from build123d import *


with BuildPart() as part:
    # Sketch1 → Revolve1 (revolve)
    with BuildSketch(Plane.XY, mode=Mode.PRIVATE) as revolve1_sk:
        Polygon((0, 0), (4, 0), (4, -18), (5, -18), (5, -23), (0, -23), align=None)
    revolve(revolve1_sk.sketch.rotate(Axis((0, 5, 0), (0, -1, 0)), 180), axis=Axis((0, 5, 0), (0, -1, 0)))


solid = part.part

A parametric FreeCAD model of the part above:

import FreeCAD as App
import Part
import Sketcher
Q = App.Units.Quantity

doc = App.newDocument("Part")
body = doc.addObject("PartDesign::Body", "Body")

# Sketch on XY plane
sketch1 = doc.addObject("Sketcher::SketchObject", "Sketch")
body.addObject(sketch1)
sketch1.AttachmentSupport = (doc.XY_Plane, [""])
sketch1.MapMode = "FlatFace"
sketch1.addGeometry([
    Part.LineSegment(App.Vector(4, 0, 0), App.Vector(0, 0, 0)),  # 0
    Part.LineSegment(App.Vector(0, 0, 0), App.Vector(0, -23, 0)),  # 1
    Part.LineSegment(App.Vector(0, -23, 0), App.Vector(5, -23, 0)),  # 2
    Part.LineSegment(App.Vector(5, -23, 0), App.Vector(5, -18, 0)),  # 3
    Part.LineSegment(App.Vector(5, -18, 0), App.Vector(4, -18, 0)),  # 4
    Part.LineSegment(App.Vector(4, -18, 0), App.Vector(4, 0, 0)),  # 5
], False)
sketch1.addConstraint([
    Sketcher.Constraint("Coincident", 0, 2, 1, 1),
    Sketcher.Constraint("Coincident", 1, 2, 2, 1),
    Sketcher.Constraint("Coincident", 2, 2, 3, 1),
    Sketcher.Constraint("Coincident", 3, 2, 4, 1),
    Sketcher.Constraint("Coincident", 4, 2, 5, 1),
    Sketcher.Constraint("Coincident", 5, 2, 0, 1),
    Sketcher.Constraint("Horizontal", 0),
    Sketcher.Constraint("Vertical", 1),
    Sketcher.Constraint("Horizontal", 2),
    Sketcher.Constraint("Vertical", 3),
    Sketcher.Constraint("Horizontal", 4),
    Sketcher.Constraint("Vertical", 5),
    Sketcher.Constraint("Coincident", 0, 2, -1, 1),
    Sketcher.Constraint("Equal", 2, 3),
    Sketcher.Constraint("DistanceX", 0, 2, 0, 1, Q("4 mm")),
    Sketcher.Constraint("DistanceX", 2, 1, 2, 2, Q("5 mm")),
    Sketcher.Constraint("DistanceY", 1, 2, 1, 1, Q("23 mm")),
])
revolution = doc.addObject("PartDesign::Revolution", "Revolution")
body.addObject(revolution)
revolution.Profile = sketch1
revolution.ReferenceAxis = (sketch1, ["V_Axis"])
revolution.Angle = 360

doc.recompute()
